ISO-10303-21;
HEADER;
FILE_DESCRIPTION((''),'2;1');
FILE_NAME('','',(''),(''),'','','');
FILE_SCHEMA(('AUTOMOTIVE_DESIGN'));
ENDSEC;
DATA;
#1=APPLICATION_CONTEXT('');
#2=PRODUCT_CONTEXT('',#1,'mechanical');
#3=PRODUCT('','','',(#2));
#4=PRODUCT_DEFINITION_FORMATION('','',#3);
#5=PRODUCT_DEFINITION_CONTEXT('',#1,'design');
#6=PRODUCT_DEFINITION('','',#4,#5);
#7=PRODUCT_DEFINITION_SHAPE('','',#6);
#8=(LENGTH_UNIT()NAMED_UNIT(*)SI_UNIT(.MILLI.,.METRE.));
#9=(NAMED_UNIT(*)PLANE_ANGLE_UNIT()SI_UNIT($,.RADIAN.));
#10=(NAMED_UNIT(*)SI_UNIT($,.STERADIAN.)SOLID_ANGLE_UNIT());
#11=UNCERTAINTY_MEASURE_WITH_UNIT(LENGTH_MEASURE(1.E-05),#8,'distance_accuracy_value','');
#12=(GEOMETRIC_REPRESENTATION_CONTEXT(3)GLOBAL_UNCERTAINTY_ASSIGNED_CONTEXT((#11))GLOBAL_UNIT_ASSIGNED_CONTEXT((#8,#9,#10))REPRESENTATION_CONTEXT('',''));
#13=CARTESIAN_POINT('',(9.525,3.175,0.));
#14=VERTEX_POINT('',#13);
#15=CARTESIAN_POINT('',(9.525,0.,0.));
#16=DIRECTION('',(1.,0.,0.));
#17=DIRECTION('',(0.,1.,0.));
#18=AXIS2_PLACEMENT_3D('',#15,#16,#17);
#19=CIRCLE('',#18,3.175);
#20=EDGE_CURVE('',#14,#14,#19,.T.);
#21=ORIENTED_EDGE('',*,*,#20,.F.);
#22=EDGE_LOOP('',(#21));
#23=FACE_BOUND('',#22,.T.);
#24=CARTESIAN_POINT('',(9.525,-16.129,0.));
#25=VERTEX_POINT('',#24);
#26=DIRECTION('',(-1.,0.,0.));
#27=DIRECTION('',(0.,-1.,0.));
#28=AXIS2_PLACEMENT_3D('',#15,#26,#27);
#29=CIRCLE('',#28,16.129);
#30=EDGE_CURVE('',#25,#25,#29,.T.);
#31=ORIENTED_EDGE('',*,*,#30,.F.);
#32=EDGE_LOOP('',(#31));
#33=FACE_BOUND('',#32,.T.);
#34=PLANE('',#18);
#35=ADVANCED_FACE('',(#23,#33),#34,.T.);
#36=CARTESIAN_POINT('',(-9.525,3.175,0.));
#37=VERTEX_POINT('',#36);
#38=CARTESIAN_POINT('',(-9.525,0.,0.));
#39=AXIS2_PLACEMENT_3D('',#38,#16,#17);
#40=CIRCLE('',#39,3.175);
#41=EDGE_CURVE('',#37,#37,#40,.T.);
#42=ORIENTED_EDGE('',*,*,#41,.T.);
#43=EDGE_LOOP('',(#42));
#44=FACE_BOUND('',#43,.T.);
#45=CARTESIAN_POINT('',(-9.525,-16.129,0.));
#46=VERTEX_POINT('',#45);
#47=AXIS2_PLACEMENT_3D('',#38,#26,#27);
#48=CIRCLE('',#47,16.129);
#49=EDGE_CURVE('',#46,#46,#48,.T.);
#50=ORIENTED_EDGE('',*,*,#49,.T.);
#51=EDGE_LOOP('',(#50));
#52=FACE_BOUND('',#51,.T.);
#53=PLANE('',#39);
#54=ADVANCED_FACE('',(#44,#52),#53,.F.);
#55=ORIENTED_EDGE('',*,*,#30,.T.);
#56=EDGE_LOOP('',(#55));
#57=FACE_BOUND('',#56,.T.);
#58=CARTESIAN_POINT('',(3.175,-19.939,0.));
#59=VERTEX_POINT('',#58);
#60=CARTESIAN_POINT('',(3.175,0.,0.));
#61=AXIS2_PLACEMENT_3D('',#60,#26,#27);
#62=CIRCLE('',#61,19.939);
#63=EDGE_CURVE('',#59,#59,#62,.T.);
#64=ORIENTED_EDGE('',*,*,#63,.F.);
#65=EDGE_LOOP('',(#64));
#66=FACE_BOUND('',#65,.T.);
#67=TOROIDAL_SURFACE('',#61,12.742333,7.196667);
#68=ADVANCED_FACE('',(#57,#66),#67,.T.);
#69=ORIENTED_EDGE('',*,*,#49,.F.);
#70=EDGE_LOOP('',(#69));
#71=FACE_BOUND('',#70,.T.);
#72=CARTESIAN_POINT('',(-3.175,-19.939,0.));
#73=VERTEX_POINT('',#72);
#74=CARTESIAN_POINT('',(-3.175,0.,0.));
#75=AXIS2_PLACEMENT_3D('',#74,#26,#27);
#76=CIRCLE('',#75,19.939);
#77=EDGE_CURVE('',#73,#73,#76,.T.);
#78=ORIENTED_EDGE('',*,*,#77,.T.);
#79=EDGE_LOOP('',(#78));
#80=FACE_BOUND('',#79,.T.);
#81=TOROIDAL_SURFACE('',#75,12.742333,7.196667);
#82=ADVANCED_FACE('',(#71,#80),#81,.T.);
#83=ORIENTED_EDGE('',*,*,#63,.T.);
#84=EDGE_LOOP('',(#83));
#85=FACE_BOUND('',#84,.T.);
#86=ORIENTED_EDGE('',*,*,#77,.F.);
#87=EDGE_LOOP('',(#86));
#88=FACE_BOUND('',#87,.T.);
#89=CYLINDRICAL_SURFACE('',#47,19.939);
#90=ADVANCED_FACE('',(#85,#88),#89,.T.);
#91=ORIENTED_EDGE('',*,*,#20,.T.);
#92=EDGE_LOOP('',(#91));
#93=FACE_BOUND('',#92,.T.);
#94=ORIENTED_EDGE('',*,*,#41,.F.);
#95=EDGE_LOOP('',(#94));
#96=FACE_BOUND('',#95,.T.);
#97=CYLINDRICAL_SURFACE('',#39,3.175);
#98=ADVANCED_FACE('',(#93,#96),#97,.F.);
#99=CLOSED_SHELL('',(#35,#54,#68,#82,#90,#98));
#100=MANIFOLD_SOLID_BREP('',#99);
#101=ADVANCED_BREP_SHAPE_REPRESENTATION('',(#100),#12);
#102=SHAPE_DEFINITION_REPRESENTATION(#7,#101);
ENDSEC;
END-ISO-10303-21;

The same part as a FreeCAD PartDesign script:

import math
import FreeCAD as App
import Part
import Sketcher

V = App.Vector
Q = App.Units.Quantity

doc = App.newDocument("Part")
body = doc.addObject("PartDesign::Body", "Body")

# Sketch on XY plane
sketch1 = body.newObject("Sketcher::SketchObject", "Sketch")
sketch1.AttachmentSupport = (doc.getObject("XY_Plane"), [""])
sketch1.MapMode = "FlatFace"
sketch1.addGeometry(Part.LineSegment(V(10, 0, 0), V(-10, 0, 0)), False)
sketch1.addGeometry(Part.LineSegment(V(-10, 0, 0), V(-10, -16, 0)), False)
sketch1.addGeometry(Part.ArcOfCircle(Part.Circle(V(-3, -13, 0), V(0, 0, 1), 7), math.radians(-152), math.radians(-90)), False)
sketch1.addGeometry(Part.LineSegment(V(-3, -20, 0), V(3, -20, 0)), False)
sketch1.addGeometry(Part.ArcOfCircle(Part.Circle(V(3, -13, 0), V(0, 0, 1), 7), math.radians(-90), math.radians(-28)), False)
sketch1.addGeometry(Part.LineSegment(V(10, -16, 0), V(10, 0, 0)), False)
sketch1.addConstraint(Sketcher.Constraint("Coincident", 0, 2, 1, 1))
sketch1.addConstraint(Sketcher.Constraint("Coincident", 1, 2, 2, 1))
sketch1.addConstraint(Sketcher.Constraint("Tangent", 2, 2, 3, 1))
sketch1.addConstraint(Sketcher.Constraint("Tangent", 3, 2, 4, 1))
sketch1.addConstraint(Sketcher.Constraint("Coincident", 4, 2, 5, 1))
sketch1.addConstraint(Sketcher.Constraint("Coincident", 5, 2, 0, 1))
sketch1.addConstraint(Sketcher.Constraint("Horizontal", 0))
sketch1.addConstraint(Sketcher.Constraint("Vertical", 1))
sketch1.addConstraint(Sketcher.Constraint("Horizontal", 3))
sketch1.addConstraint(Sketcher.Constraint("Vertical", 5))
sketch1.addConstraint(Sketcher.Constraint("Equal", 2, 4))
sketch1.addConstraint(Sketcher.Constraint("Symmetric", 0, 2, 5, 2, -1, 1))
sketch1.addConstraint(Sketcher.Constraint("Horizontal", 1, 2, 4, 2))
sketch1.addConstraint(Sketcher.Constraint("DistanceX", 0, 2, 0, 1, Q("0.75 in")))
sketch1.addConstraint(Sketcher.Constraint("DistanceX", 3, 1, 3, 2, Q("0.25 in")))
sketch1.addConstraint(Sketcher.Constraint("DistanceY", 1, 2, 1, 1, Q("0.635 in")))
sketch1.addConstraint(Sketcher.Constraint("DistanceY", 2, 2, 1, 2, Q("0.15 in")))
revolution = body.newObject("PartDesign::Revolution", "Revolution")
revolution.Profile = sketch1
revolution.ReferenceAxis = (sketch1, ["H_Axis"])
revolution.Angle = 360

# Sketch on YZ plane
sketch2 = body.newObject("Sketcher::SketchObject", "Sketch001")
sketch2.AttachmentSupport = (doc.getObject("YZ_Plane"), [""])
sketch2.MapMode = "FlatFace"
sketch2.AttachmentOffset = App.Placement(V(0, 0, 0.375 * 25.4), App.Rotation())
sketch2.addGeometry(Part.Circle(V(0, 0, 0), V(0, 0, 1), 3.2), False)
sketch2.addConstraint(Sketcher.Constraint("Coincident", 0, 3, -1, 1))
sketch2.addConstraint(Sketcher.Constraint("Diameter", 0, Q("0.25 in")))
pocket1 = body.newObject("PartDesign::Pocket", "Pocket")
pocket1.Profile = sketch2
pocket1.Type = "ThroughAll"

doc.recompute()
